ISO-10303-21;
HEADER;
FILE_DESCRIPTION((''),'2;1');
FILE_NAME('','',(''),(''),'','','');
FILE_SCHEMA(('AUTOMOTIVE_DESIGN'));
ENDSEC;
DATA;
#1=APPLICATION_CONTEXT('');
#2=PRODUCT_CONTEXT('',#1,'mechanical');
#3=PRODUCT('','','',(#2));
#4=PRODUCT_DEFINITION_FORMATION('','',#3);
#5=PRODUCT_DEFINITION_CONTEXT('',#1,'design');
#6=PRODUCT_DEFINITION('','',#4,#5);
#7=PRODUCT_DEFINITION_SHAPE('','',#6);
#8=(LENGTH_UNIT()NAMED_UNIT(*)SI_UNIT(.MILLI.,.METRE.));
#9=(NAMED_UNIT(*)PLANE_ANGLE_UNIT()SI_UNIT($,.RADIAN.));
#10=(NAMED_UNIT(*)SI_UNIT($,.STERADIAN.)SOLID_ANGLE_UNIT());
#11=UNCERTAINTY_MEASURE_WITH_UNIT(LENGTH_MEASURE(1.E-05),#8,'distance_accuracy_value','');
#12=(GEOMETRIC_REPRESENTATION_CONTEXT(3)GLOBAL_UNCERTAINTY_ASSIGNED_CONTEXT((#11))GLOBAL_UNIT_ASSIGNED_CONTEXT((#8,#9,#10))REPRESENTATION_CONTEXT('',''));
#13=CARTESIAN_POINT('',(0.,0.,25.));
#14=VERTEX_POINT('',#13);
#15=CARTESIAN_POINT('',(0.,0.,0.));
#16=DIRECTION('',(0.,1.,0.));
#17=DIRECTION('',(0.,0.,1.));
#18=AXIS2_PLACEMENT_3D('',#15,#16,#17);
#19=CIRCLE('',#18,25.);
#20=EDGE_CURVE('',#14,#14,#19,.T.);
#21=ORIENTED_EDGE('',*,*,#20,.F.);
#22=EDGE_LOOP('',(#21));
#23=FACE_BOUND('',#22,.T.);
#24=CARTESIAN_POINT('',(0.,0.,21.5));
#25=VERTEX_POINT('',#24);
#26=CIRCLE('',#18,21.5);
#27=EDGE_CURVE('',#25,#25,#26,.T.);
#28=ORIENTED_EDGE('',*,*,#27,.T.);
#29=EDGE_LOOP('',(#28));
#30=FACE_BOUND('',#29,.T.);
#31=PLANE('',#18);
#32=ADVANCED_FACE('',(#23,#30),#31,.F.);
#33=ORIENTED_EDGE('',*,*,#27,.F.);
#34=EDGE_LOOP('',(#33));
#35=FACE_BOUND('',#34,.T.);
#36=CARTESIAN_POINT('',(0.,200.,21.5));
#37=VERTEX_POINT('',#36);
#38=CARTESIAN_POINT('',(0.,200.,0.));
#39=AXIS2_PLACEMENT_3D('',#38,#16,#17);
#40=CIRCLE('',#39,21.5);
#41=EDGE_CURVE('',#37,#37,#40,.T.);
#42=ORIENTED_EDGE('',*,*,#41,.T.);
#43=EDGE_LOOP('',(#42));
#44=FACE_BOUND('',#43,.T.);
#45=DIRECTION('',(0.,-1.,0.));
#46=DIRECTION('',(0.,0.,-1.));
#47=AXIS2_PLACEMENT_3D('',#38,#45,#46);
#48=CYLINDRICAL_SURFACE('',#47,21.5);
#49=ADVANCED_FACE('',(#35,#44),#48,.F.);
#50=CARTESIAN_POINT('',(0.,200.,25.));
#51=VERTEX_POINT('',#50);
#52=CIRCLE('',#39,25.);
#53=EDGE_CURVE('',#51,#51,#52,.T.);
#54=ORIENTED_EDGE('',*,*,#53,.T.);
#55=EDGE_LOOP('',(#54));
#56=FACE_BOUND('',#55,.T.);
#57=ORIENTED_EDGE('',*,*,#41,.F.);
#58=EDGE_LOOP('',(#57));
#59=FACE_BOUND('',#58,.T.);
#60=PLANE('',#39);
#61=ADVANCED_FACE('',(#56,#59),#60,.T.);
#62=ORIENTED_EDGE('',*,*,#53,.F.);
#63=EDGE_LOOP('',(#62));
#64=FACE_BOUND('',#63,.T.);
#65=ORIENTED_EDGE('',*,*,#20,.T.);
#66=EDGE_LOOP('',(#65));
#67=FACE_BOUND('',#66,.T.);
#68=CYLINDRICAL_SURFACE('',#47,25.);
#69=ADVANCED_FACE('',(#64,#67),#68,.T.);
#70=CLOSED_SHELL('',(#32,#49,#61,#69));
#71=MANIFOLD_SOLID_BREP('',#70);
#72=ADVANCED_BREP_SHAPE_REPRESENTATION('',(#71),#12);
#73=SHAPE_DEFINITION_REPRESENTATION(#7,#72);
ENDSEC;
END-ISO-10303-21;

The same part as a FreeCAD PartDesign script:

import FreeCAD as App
import Part
import Sketcher

V = App.Vector

doc = App.newDocument("Part")
params = doc.addObject("Spreadsheet::Sheet", "Params")
for row, (alias, value) in enumerate([
    ("sketch1_diameter", "50 mm"),
    ("sketch1_diameter2", "43 mm"),
    ("pad1_length", "200 mm"),
], start=1):
    params.set(f"A{row}", alias)
    params.set(f"B{row}", "=" + value)
    params.setAlias(f"B{row}", alias)

body = doc.addObject("PartDesign::Body", "Body")

sketch1 = body.newObject("Sketcher::SketchObject", "Sketch")
sketch1.AttachmentSupport = (doc.getObject("XZ_Plane"), [""])
sketch1.MapMode = "FlatFace"
sketch1.addGeometry([
    Part.Circle(V(0, 0, 0), V(0, 0, 1), 25),
    Part.Circle(V(0, 0, 0), V(0, 0, 1), 22),
], False)
sketch1.addConstraint([
    Sketcher.Constraint("Coincident", 0, 3, -1, 1),
    Sketcher.Constraint("Coincident", 1, 3, -1, 1),
    Sketcher.Constraint("Diameter", 0, 50.0),
    Sketcher.Constraint("Diameter", 1, 43.0),
])
sketch1.setExpression("Constraints[2]", "Params.sketch1_diameter")
sketch1.setExpression("Constraints[3]", "Params.sketch1_diameter2")
pad1 = body.newObject("PartDesign::Pad", "Pad")
pad1.Profile = sketch1
pad1.setExpression("Length", "Params.pad1_length")
pad1.Reversed = True

doc.recompute()
